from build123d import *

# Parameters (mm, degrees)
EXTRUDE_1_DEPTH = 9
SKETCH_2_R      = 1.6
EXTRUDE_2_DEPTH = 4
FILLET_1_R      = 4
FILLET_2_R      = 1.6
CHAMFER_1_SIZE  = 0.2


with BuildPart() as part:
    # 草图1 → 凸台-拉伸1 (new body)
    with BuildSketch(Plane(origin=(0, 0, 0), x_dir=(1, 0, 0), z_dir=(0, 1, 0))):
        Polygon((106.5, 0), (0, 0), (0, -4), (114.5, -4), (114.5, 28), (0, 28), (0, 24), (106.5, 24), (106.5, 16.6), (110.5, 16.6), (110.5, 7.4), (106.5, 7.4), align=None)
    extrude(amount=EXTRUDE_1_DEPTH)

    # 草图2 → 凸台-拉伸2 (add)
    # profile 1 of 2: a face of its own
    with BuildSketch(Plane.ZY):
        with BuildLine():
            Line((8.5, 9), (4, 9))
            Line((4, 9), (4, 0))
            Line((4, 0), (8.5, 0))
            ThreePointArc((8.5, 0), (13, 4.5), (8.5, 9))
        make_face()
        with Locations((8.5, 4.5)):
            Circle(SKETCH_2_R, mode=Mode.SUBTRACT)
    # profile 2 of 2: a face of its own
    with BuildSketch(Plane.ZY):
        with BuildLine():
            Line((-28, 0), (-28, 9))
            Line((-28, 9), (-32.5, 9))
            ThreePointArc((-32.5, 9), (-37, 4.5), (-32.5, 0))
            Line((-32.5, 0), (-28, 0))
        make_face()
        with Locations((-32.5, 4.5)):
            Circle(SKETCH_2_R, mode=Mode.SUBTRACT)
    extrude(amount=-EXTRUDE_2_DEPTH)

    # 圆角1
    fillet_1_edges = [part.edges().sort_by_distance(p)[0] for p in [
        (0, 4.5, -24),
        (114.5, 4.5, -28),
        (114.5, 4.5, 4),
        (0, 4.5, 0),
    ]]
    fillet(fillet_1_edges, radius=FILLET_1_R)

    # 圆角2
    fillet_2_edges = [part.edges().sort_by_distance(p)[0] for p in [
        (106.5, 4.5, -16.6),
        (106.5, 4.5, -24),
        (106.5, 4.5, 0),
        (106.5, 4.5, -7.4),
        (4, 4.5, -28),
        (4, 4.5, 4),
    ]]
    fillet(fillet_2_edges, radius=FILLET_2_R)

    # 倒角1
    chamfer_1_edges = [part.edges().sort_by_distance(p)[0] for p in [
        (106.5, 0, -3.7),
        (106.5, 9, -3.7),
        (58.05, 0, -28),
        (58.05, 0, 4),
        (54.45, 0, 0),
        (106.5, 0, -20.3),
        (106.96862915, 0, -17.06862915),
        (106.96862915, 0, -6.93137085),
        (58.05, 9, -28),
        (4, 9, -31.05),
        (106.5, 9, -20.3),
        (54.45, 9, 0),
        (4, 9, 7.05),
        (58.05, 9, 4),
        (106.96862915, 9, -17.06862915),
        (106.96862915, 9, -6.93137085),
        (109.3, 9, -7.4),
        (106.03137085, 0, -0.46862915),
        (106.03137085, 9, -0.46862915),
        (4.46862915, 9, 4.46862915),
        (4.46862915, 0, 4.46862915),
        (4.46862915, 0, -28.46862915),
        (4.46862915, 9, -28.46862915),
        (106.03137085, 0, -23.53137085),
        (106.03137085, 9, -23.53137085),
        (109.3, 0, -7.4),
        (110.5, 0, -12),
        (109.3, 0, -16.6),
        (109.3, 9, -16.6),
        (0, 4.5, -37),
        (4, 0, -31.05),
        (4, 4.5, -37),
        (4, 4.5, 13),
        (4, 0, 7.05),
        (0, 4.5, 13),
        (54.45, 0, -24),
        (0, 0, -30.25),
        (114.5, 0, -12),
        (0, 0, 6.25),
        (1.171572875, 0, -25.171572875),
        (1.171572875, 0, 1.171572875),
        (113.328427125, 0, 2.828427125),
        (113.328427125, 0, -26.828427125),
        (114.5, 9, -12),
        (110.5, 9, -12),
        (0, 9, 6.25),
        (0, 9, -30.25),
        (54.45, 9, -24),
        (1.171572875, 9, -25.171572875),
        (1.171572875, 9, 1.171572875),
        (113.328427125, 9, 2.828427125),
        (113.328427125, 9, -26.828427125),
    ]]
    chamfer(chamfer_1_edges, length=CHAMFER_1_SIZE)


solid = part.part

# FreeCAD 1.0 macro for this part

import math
import FreeCAD as App
import Part
import Sketcher
from FreeCAD import Vector
Q = App.Units.Quantity


def edges_at(feature, points):
    """Names of the edges that pass closest to the given points."""
    edges = feature.Shape.Edges
    near = lambda p: min(range(len(edges)), key=lambda i: edges[i].distToShape(Part.Vertex(*p))[0])
    return sorted({f"Edge{near(p) + 1}" for p in points})

doc = App.newDocument("Part")
body = doc.addObject("PartDesign::Body", "Body")

sketch1 = body.newObject("Sketcher::SketchObject", "Sketch")
sketch1.AttachmentSupport = (doc.getObject("XZ_Plane"), [""])
sketch1.MapMode = "FlatFace"
sketch1.addGeometry([
    Part.LineSegment(Vector(106.5, 0, 0), Vector(0, 0, 0)),
    Part.LineSegment(Vector(0, 0, 0), Vector(0, 4, 0)),
    Part.LineSegment(Vector(0, 4, 0), Vector(114.5, 4, 0)),
    Part.LineSegment(Vector(114.5, 4, 0), Vector(114.5, -28, 0)),
    Part.LineSegment(Vector(114.5, -28, 0), Vector(0, -28, 0)),
    Part.LineSegment(Vector(0, -28, 0), Vector(0, -24, 0)),
    Part.LineSegment(Vector(0, -24, 0), Vector(106.5, -24, 0)),
    Part.LineSegment(Vector(106.5, -24, 0), Vector(106.5, -16.6, 0)),
    Part.LineSegment(Vector(106.5, -16.6, 0), Vector(110.5, -16.6, 0)),
    Part.LineSegment(Vector(110.5, -16.6, 0), Vector(110.5, -7.4, 0)),
    Part.LineSegment(Vector(110.5, -7.4, 0), Vector(106.5, -7.4, 0)),
    Part.LineSegment(Vector(106.5, -7.4, 0), Vector(106.5, 0, 0)),
], False)
sketch1.addConstraint([
    Sketcher.Constraint("Coincident", 0, 2, 1, 1),
    Sketcher.Constraint("Coincident", 1, 2, 2, 1),
    Sketcher.Constraint("Coincident", 2, 2, 3, 1),
    Sketcher.Constraint("Coincident", 3, 2, 4, 1),
    Sketcher.Constraint("Coincident", 4, 2, 5, 1),
    Sketcher.Constraint("Coincident", 5, 2, 6, 1),
    Sketcher.Constraint("Coincident", 6, 2, 7, 1),
    Sketcher.Constraint("Coincident", 7, 2, 8, 1),
    Sketcher.Constraint("Coincident", 8, 2, 9, 1),
    Sketcher.Constraint("Coincident", 9, 2, 10, 1),
    Sketcher.Constraint("Coincident", 10, 2, 11, 1),
    Sketcher.Constraint("Coincident", 11, 2, 0, 1),
    Sketcher.Constraint("Horizontal", 0),
    Sketcher.Constraint("Vertical", 1),
    Sketcher.Constraint("Horizontal", 2),
    Sketcher.Constraint("Vertical", 3),
    Sketcher.Constraint("Horizontal", 4),
    Sketcher.Constraint("Vertical", 5),
    Sketcher.Constraint("Horizontal", 6),
    Sketcher.Constraint("Vertical", 7),
    Sketcher.Constraint("Horizontal", 8),
    Sketcher.Constraint("Vertical", 9),
    Sketcher.Constraint("Horizontal", 10),
    Sketcher.Constraint("Vertical", 11),
    Sketcher.Constraint("Coincident", 0, 2, -1, 1),
    Sketcher.Constraint("PointOnObject", 4, 2, -2),
    Sketcher.Constraint("Vertical", 7, 2, 10, 2),
    Sketcher.Constraint("Equal", 10, 1),
    Sketcher.Constraint("Equal", 1, 5),
    Sketcher.Constraint("Equal", 7, 11),
    Sketcher.Constraint("DistanceX", 8, 1, 8, 2, Q("4 mm")),
    Sketcher.Constraint("DistanceY", 3, 2, 3, 1, Q("32 mm")),
    Sketcher.Constraint("DistanceX", 0, 2, 0, 1, Q("106.5 mm")),
    Sketcher.Constraint("DistanceX", 2, 1, 2, 2, Q("114.5 mm")),
    Sketcher.Constraint("DistanceY", 7, 1, 7, 2, Q("7.4 mm")),
])
pad1 = body.newObject("PartDesign::Pad", "Pad")
pad1.Profile = sketch1
pad1.Length = 9
pad1.Reversed = True

sketch2 = body.newObject("Sketcher::SketchObject", "Sketch001")
sketch2.AttachmentSupport = (doc.getObject("YZ_Plane"), [""])
sketch2.MapMode = "FlatFace"
sketch2.addGeometry([
    Part.LineSegment(Vector(9, 8.5, 0), Vector(9, 4, 0)),
    Part.LineSegment(Vector(9, 4, 0), Vector(0, 4, 0)),
    Part.LineSegment(Vector(0, 4, 0), Vector(0, 8.5, 0)),
    Part.ArcOfCircle(Part.Circle(Vector(4.5, 8.5, 0), Vector(0, 0, 1), 4.5), math.radians(0), math.radians(180)),
    Part.Circle(Vector(4.5, 8.5, 0), Vector(0, 0, 1), 1.6),
    Part.LineSegment(Vector(0, -28, 0), Vector(9, -28, 0)),
    Part.LineSegment(Vector(9, -28, 0), Vector(9, -32.5, 0)),
    Part.ArcOfCircle(Part.Circle(Vector(4.5, -32.5, 0), Vector(0, 0, 1), 4.5), math.radians(180), math.radians(360)),
    Part.LineSegment(Vector(0, -32.5, 0), Vector(0, -28, 0)),
    Part.Circle(Vector(4.5, -32.5, 0), Vector(0, 0, 1), 1.6),
], False)
sketch2.addConstraint([
    Sketcher.Constraint("Coincident", 0, 2, 1, 1),
    Sketcher.Constraint("Coincident", 1, 2, 2, 1),
    Sketcher.Constraint("Tangent", 2, 2, 3, 2),
    Sketcher.Constraint("Tangent", 3, 1, 0, 1),
    Sketcher.Constraint("Coincident", 5, 2, 6, 1),
    Sketcher.Constraint("Tangent", 6, 2, 7, 2),
    Sketcher.Constraint("Tangent", 7, 1, 8, 1),
    Sketcher.Constraint("Coincident", 8, 2, 5, 1),
    Sketcher.Constraint("Vertical", 0),
    Sketcher.Constraint("Horizontal", 1),
    Sketcher.Constraint("Vertical", 2),
    Sketcher.Constraint("Horizontal", 5),
    Sketcher.Constraint("Vertical", 6),
    Sketcher.Constraint("Vertical", 8),
    Sketcher.Constraint("Coincident", 4, 3, 3, 3),
    Sketcher.Constraint("Coincident", 9, 3, 7, 3),
    Sketcher.Constraint("Equal", 3, 7),
    Sketcher.Constraint("Equal", 4, 9),
    Sketcher.Constraint("PointOnObject", 1, 2, -2),
    Sketcher.Constraint("PointOnObject", 7, 1, -2),
    Sketcher.Constraint("Equal", 2, 6),
    Sketcher.Constraint("Diameter", 4, Q("3.2 mm")),
    Sketcher.Constraint("Radius", 3, Q("4.5 mm")),
    Sketcher.Constraint("DistanceY", 0, 2, 0, 1, Q("4.5 mm")),
    Sketcher.Constraint("DistanceY", -1, 1, 0, 2, Q("4 mm")),
    Sketcher.Constraint("DistanceY", 5, 2, -1, 1, Q("28 mm")),
])
pad2 = body.newObject("PartDesign::Pad", "Pad001")
pad2.Profile = sketch2
pad2.Length = 4
doc.recompute()

fillet = body.newObject("PartDesign::Fillet", "Fillet")
fillet.Base = (pad2, edges_at(pad2, [
    (0, 4.5, -24),
    (114.5, 4.5, -28),
    (114.5, 4.5, 4),
    (0, 4.5, 0),
]))
fillet.Radius = 4
doc.recompute()

fillet2 = body.newObject("PartDesign::Fillet", "Fillet001")
fillet2.Base = (fillet, edges_at(fillet, [
    (106.5, 4.5, -16.6),
    (106.5, 4.5, -24),
    (106.5, 4.5, 0),
    (106.5, 4.5, -7.4),
    (4, 4.5, -28),
    (4, 4.5, 4),
]))
fillet2.Radius = 1.6
doc.recompute()

chamfer = body.newObject("PartDesign::Chamfer", "Chamfer")
chamfer.Base = (fillet2, edges_at(fillet2, [
    (106.5, 0, -3.7),
    (106.5, 9, -3.7),
    (58.05, 0, -28),
    (58.05, 0, 4),
    (54.45, 0, 0),
    (106.5, 0, -20.3),
    (106.969, 0, -17.069),
    (106.969, 0, -6.931),
    (58.05, 9, -28),
    (4, 9, -31.05),
    (106.5, 9, -20.3),
    (54.45, 9, 0),
    (4, 9, 7.05),
    (58.05, 9, 4),
    (106.969, 9, -17.069),
    (106.969, 9, -6.931),
    (109.3, 9, -7.4),
    (106.031, 0, -0.469),
    (106.031, 9, -0.469),
    (4.469, 9, 4.469),
    (4.469, 0, 4.469),
    (4.469, 0, -28.469),
    (4.469, 9, -28.469),
    (106.031, 0, -23.531),
    (106.031, 9, -23.531),
    (109.3, 0, -7.4),
    (110.5, 0, -12),
    (109.3, 0, -16.6),
    (109.3, 9, -16.6),
    (0, 4.5, -37),
    (4, 0, -31.05),
    (4, 4.5, -37),
    (4, 4.5, 13),
    (4, 0, 7.05),
    (0, 4.5, 13),
    (54.45, 0, -24),
    (0, 0, -30.25),
    (114.5, 0, -12),
    (0, 0, 6.25),
    (1.172, 0, -25.172),
    (1.172, 0, 1.172),
    (113.328, 0, 2.828),
    (113.328, 0, -26.828),
    (114.5, 9, -12),
    (110.5, 9, -12),
    (0, 9, 6.25),
    (0, 9, -30.25),
    (54.45, 9, -24),
    (1.172, 9, -25.172),
    (1.172, 9, 1.172),
    (113.328, 9, 2.828),
    (113.328, 9, -26.828),
]))
chamfer.Size = 0.2

doc.recompute()
